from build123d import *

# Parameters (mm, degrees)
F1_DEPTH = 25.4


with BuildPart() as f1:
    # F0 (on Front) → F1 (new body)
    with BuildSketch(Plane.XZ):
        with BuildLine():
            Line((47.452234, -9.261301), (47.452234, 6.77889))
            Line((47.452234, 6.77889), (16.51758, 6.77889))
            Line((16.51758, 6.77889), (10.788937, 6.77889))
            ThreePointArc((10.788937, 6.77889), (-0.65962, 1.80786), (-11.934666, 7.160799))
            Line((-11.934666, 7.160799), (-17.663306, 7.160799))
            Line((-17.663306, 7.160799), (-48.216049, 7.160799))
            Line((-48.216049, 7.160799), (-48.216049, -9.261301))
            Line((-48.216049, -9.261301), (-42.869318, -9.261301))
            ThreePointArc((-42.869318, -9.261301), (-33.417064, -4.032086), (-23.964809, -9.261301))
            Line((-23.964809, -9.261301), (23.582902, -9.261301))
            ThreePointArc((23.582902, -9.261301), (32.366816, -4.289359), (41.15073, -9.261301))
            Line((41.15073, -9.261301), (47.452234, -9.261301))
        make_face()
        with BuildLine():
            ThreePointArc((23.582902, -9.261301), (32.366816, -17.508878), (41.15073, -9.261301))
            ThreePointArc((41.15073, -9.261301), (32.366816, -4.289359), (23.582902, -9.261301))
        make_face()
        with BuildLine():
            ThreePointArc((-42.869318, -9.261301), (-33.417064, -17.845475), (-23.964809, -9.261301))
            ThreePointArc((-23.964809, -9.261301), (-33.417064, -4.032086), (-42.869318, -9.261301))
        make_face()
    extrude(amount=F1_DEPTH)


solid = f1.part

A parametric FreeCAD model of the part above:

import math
import FreeCAD as App
import Part
import Sketcher
from FreeCAD import Vector
Q = App.Units.Quantity

doc = App.newDocument("Part")
body = doc.addObject("PartDesign::Body", "Body")

# Sketch on XZ plane
sketch1 = doc.addObject("Sketcher::SketchObject", "Sketch")
body.addObject(sketch1)
sketch1.AttachmentSupport = (doc.XZ_Plane, [""])
sketch1.MapMode = "FlatFace"
sketch1.addGeometry(Part.LineSegment(Vector(47, -9, 0), Vector(47, 7, 0)), False)
sketch1.addGeometry(Part.LineSegment(Vector(47, 7, 0), Vector(11, 7, 0)), False)
sketch1.addGeometry(Part.ArcOfCircle(Part.Circle(Vector(0, 17, 0), Vector(0, 0, 1), 15), math.radians(-140), math.radians(-42)), False)
sketch1.addGeometry(Part.LineSegment(Vector(-12, 7, 0), Vector(-48, 7, 0)), False)
sketch1.addGeometry(Part.LineSegment(Vector(-48, 7, 0), Vector(-48, -9, 0)), False)
sketch1.addGeometry(Part.LineSegment(Vector(-48, -9, 0), Vector(-43, -9, 0)), False)
sketch1.addGeometry(Part.ArcOfCircle(Part.Circle(Vector(-33, -8, 0), Vector(0, 0, 1), 9), math.radians(-174), math.radians(-6)), False)
sketch1.addGeometry(Part.LineSegment(Vector(-24, -9, 0), Vector(24, -9, 0)), False)
sketch1.addGeometry(Part.ArcOfCircle(Part.Circle(Vector(32, -9, 0), Vector(0, 0, 1), 9), math.radians(-176), math.radians(-4)), False)
sketch1.addGeometry(Part.LineSegment(Vector(41, -9, 0), Vector(47, -9, 0)), False)
sketch1.addConstraint(Sketcher.Constraint("Coincident", 0, 2, 1, 1))
sketch1.addConstraint(Sketcher.Constraint("Coincident", 1, 2, 2, 2))
sketch1.addConstraint(Sketcher.Constraint("Coincident", 2, 1, 3, 1))
sketch1.addConstraint(Sketcher.Constraint("Coincident", 3, 2, 4, 1))
sketch1.addConstraint(Sketcher.Constraint("Coincident", 4, 2, 5, 1))
sketch1.addConstraint(Sketcher.Constraint("Coincident", 5, 2, 6, 1))
sketch1.addConstraint(Sketcher.Constraint("Coincident", 6, 2, 7, 1))
sketch1.addConstraint(Sketcher.Constraint("Coincident", 7, 2, 8, 1))
sketch1.addConstraint(Sketcher.Constraint("Coincident", 8, 2, 9, 1))
sketch1.addConstraint(Sketcher.Constraint("Coincident", 9, 2, 0, 1))
sketch1.addConstraint(Sketcher.Constraint("Vertical", 0))
sketch1.addConstraint(Sketcher.Constraint("Horizontal", 1))
sketch1.addConstraint(Sketcher.Constraint("Horizontal", 3))
sketch1.addConstraint(Sketcher.Constraint("Vertical", 4))
sketch1.addConstraint(Sketcher.Constraint("Horizontal", 5))
sketch1.addConstraint(Sketcher.Constraint("Horizontal", 7))
sketch1.addConstraint(Sketcher.Constraint("Horizontal", 9))
sketch1.addConstraint(Sketcher.Constraint("Horizontal", 5, 2, 6, 2))
sketch1.addConstraint(Sketcher.Constraint("Horizontal", 7, 2, 8, 2))
sketch1.addConstraint(Sketcher.Constraint("DistanceY", 4, 2, 4, 1, Q("16.4221 mm")))
sketch1.addConstraint(Sketcher.Constraint("Radius", 2, Q("15.087086 mm")))
sketch1.addConstraint(Sketcher.Constraint("Radius", 6, Q("9.496147 mm")))
sketch1.addConstraint(Sketcher.Constraint("Radius", 8, Q("8.801353 mm")))
sketch1.addConstraint(Sketcher.Constraint("DistanceX", 5, 1, 5, 2, Q("5.346731 mm")))
sketch1.addConstraint(Sketcher.Constraint("DistanceX", 7, 1, 7, 2, Q("47.547711 mm")))
sketch1.addConstraint(Sketcher.Constraint("DistanceY", 0, 1, 0, 2, Q("16.040191 mm")))
sketch1.addConstraint(Sketcher.Constraint("DistanceY", -1, 1, 2, 1, Q("7.160799 mm")))
sketch1.addConstraint(Sketcher.Constraint("DistanceX", 6, 3, 1, 2, Q("44.206001 mm")))
sketch1.addConstraint(Sketcher.Constraint("DistanceX", 2, 1, 0, 2, Q("59.3869 mm")))
sketch1.addConstraint(Sketcher.Constraint("DistanceX", 1, 2, 1, 1, Q("36.663297 mm")))
sketch1.addConstraint(Sketcher.Constraint("DistanceX", 3, 2, 3, 1, Q("36.281383 mm")))
sketch1.addConstraint(Sketcher.Constraint("DistanceX", 9, 1, 9, 2, Q("6.301504 mm")))
sketch1.addConstraint(Sketcher.Constraint("DistanceX", 2, 3, -1, 1, Q("0.406092 mm")))
pad1 = doc.addObject("PartDesign::Pad", "Pad")
body.addObject(pad1)
pad1.Profile = sketch1
pad1.Length = Q("1 in")

doc.recompute()
